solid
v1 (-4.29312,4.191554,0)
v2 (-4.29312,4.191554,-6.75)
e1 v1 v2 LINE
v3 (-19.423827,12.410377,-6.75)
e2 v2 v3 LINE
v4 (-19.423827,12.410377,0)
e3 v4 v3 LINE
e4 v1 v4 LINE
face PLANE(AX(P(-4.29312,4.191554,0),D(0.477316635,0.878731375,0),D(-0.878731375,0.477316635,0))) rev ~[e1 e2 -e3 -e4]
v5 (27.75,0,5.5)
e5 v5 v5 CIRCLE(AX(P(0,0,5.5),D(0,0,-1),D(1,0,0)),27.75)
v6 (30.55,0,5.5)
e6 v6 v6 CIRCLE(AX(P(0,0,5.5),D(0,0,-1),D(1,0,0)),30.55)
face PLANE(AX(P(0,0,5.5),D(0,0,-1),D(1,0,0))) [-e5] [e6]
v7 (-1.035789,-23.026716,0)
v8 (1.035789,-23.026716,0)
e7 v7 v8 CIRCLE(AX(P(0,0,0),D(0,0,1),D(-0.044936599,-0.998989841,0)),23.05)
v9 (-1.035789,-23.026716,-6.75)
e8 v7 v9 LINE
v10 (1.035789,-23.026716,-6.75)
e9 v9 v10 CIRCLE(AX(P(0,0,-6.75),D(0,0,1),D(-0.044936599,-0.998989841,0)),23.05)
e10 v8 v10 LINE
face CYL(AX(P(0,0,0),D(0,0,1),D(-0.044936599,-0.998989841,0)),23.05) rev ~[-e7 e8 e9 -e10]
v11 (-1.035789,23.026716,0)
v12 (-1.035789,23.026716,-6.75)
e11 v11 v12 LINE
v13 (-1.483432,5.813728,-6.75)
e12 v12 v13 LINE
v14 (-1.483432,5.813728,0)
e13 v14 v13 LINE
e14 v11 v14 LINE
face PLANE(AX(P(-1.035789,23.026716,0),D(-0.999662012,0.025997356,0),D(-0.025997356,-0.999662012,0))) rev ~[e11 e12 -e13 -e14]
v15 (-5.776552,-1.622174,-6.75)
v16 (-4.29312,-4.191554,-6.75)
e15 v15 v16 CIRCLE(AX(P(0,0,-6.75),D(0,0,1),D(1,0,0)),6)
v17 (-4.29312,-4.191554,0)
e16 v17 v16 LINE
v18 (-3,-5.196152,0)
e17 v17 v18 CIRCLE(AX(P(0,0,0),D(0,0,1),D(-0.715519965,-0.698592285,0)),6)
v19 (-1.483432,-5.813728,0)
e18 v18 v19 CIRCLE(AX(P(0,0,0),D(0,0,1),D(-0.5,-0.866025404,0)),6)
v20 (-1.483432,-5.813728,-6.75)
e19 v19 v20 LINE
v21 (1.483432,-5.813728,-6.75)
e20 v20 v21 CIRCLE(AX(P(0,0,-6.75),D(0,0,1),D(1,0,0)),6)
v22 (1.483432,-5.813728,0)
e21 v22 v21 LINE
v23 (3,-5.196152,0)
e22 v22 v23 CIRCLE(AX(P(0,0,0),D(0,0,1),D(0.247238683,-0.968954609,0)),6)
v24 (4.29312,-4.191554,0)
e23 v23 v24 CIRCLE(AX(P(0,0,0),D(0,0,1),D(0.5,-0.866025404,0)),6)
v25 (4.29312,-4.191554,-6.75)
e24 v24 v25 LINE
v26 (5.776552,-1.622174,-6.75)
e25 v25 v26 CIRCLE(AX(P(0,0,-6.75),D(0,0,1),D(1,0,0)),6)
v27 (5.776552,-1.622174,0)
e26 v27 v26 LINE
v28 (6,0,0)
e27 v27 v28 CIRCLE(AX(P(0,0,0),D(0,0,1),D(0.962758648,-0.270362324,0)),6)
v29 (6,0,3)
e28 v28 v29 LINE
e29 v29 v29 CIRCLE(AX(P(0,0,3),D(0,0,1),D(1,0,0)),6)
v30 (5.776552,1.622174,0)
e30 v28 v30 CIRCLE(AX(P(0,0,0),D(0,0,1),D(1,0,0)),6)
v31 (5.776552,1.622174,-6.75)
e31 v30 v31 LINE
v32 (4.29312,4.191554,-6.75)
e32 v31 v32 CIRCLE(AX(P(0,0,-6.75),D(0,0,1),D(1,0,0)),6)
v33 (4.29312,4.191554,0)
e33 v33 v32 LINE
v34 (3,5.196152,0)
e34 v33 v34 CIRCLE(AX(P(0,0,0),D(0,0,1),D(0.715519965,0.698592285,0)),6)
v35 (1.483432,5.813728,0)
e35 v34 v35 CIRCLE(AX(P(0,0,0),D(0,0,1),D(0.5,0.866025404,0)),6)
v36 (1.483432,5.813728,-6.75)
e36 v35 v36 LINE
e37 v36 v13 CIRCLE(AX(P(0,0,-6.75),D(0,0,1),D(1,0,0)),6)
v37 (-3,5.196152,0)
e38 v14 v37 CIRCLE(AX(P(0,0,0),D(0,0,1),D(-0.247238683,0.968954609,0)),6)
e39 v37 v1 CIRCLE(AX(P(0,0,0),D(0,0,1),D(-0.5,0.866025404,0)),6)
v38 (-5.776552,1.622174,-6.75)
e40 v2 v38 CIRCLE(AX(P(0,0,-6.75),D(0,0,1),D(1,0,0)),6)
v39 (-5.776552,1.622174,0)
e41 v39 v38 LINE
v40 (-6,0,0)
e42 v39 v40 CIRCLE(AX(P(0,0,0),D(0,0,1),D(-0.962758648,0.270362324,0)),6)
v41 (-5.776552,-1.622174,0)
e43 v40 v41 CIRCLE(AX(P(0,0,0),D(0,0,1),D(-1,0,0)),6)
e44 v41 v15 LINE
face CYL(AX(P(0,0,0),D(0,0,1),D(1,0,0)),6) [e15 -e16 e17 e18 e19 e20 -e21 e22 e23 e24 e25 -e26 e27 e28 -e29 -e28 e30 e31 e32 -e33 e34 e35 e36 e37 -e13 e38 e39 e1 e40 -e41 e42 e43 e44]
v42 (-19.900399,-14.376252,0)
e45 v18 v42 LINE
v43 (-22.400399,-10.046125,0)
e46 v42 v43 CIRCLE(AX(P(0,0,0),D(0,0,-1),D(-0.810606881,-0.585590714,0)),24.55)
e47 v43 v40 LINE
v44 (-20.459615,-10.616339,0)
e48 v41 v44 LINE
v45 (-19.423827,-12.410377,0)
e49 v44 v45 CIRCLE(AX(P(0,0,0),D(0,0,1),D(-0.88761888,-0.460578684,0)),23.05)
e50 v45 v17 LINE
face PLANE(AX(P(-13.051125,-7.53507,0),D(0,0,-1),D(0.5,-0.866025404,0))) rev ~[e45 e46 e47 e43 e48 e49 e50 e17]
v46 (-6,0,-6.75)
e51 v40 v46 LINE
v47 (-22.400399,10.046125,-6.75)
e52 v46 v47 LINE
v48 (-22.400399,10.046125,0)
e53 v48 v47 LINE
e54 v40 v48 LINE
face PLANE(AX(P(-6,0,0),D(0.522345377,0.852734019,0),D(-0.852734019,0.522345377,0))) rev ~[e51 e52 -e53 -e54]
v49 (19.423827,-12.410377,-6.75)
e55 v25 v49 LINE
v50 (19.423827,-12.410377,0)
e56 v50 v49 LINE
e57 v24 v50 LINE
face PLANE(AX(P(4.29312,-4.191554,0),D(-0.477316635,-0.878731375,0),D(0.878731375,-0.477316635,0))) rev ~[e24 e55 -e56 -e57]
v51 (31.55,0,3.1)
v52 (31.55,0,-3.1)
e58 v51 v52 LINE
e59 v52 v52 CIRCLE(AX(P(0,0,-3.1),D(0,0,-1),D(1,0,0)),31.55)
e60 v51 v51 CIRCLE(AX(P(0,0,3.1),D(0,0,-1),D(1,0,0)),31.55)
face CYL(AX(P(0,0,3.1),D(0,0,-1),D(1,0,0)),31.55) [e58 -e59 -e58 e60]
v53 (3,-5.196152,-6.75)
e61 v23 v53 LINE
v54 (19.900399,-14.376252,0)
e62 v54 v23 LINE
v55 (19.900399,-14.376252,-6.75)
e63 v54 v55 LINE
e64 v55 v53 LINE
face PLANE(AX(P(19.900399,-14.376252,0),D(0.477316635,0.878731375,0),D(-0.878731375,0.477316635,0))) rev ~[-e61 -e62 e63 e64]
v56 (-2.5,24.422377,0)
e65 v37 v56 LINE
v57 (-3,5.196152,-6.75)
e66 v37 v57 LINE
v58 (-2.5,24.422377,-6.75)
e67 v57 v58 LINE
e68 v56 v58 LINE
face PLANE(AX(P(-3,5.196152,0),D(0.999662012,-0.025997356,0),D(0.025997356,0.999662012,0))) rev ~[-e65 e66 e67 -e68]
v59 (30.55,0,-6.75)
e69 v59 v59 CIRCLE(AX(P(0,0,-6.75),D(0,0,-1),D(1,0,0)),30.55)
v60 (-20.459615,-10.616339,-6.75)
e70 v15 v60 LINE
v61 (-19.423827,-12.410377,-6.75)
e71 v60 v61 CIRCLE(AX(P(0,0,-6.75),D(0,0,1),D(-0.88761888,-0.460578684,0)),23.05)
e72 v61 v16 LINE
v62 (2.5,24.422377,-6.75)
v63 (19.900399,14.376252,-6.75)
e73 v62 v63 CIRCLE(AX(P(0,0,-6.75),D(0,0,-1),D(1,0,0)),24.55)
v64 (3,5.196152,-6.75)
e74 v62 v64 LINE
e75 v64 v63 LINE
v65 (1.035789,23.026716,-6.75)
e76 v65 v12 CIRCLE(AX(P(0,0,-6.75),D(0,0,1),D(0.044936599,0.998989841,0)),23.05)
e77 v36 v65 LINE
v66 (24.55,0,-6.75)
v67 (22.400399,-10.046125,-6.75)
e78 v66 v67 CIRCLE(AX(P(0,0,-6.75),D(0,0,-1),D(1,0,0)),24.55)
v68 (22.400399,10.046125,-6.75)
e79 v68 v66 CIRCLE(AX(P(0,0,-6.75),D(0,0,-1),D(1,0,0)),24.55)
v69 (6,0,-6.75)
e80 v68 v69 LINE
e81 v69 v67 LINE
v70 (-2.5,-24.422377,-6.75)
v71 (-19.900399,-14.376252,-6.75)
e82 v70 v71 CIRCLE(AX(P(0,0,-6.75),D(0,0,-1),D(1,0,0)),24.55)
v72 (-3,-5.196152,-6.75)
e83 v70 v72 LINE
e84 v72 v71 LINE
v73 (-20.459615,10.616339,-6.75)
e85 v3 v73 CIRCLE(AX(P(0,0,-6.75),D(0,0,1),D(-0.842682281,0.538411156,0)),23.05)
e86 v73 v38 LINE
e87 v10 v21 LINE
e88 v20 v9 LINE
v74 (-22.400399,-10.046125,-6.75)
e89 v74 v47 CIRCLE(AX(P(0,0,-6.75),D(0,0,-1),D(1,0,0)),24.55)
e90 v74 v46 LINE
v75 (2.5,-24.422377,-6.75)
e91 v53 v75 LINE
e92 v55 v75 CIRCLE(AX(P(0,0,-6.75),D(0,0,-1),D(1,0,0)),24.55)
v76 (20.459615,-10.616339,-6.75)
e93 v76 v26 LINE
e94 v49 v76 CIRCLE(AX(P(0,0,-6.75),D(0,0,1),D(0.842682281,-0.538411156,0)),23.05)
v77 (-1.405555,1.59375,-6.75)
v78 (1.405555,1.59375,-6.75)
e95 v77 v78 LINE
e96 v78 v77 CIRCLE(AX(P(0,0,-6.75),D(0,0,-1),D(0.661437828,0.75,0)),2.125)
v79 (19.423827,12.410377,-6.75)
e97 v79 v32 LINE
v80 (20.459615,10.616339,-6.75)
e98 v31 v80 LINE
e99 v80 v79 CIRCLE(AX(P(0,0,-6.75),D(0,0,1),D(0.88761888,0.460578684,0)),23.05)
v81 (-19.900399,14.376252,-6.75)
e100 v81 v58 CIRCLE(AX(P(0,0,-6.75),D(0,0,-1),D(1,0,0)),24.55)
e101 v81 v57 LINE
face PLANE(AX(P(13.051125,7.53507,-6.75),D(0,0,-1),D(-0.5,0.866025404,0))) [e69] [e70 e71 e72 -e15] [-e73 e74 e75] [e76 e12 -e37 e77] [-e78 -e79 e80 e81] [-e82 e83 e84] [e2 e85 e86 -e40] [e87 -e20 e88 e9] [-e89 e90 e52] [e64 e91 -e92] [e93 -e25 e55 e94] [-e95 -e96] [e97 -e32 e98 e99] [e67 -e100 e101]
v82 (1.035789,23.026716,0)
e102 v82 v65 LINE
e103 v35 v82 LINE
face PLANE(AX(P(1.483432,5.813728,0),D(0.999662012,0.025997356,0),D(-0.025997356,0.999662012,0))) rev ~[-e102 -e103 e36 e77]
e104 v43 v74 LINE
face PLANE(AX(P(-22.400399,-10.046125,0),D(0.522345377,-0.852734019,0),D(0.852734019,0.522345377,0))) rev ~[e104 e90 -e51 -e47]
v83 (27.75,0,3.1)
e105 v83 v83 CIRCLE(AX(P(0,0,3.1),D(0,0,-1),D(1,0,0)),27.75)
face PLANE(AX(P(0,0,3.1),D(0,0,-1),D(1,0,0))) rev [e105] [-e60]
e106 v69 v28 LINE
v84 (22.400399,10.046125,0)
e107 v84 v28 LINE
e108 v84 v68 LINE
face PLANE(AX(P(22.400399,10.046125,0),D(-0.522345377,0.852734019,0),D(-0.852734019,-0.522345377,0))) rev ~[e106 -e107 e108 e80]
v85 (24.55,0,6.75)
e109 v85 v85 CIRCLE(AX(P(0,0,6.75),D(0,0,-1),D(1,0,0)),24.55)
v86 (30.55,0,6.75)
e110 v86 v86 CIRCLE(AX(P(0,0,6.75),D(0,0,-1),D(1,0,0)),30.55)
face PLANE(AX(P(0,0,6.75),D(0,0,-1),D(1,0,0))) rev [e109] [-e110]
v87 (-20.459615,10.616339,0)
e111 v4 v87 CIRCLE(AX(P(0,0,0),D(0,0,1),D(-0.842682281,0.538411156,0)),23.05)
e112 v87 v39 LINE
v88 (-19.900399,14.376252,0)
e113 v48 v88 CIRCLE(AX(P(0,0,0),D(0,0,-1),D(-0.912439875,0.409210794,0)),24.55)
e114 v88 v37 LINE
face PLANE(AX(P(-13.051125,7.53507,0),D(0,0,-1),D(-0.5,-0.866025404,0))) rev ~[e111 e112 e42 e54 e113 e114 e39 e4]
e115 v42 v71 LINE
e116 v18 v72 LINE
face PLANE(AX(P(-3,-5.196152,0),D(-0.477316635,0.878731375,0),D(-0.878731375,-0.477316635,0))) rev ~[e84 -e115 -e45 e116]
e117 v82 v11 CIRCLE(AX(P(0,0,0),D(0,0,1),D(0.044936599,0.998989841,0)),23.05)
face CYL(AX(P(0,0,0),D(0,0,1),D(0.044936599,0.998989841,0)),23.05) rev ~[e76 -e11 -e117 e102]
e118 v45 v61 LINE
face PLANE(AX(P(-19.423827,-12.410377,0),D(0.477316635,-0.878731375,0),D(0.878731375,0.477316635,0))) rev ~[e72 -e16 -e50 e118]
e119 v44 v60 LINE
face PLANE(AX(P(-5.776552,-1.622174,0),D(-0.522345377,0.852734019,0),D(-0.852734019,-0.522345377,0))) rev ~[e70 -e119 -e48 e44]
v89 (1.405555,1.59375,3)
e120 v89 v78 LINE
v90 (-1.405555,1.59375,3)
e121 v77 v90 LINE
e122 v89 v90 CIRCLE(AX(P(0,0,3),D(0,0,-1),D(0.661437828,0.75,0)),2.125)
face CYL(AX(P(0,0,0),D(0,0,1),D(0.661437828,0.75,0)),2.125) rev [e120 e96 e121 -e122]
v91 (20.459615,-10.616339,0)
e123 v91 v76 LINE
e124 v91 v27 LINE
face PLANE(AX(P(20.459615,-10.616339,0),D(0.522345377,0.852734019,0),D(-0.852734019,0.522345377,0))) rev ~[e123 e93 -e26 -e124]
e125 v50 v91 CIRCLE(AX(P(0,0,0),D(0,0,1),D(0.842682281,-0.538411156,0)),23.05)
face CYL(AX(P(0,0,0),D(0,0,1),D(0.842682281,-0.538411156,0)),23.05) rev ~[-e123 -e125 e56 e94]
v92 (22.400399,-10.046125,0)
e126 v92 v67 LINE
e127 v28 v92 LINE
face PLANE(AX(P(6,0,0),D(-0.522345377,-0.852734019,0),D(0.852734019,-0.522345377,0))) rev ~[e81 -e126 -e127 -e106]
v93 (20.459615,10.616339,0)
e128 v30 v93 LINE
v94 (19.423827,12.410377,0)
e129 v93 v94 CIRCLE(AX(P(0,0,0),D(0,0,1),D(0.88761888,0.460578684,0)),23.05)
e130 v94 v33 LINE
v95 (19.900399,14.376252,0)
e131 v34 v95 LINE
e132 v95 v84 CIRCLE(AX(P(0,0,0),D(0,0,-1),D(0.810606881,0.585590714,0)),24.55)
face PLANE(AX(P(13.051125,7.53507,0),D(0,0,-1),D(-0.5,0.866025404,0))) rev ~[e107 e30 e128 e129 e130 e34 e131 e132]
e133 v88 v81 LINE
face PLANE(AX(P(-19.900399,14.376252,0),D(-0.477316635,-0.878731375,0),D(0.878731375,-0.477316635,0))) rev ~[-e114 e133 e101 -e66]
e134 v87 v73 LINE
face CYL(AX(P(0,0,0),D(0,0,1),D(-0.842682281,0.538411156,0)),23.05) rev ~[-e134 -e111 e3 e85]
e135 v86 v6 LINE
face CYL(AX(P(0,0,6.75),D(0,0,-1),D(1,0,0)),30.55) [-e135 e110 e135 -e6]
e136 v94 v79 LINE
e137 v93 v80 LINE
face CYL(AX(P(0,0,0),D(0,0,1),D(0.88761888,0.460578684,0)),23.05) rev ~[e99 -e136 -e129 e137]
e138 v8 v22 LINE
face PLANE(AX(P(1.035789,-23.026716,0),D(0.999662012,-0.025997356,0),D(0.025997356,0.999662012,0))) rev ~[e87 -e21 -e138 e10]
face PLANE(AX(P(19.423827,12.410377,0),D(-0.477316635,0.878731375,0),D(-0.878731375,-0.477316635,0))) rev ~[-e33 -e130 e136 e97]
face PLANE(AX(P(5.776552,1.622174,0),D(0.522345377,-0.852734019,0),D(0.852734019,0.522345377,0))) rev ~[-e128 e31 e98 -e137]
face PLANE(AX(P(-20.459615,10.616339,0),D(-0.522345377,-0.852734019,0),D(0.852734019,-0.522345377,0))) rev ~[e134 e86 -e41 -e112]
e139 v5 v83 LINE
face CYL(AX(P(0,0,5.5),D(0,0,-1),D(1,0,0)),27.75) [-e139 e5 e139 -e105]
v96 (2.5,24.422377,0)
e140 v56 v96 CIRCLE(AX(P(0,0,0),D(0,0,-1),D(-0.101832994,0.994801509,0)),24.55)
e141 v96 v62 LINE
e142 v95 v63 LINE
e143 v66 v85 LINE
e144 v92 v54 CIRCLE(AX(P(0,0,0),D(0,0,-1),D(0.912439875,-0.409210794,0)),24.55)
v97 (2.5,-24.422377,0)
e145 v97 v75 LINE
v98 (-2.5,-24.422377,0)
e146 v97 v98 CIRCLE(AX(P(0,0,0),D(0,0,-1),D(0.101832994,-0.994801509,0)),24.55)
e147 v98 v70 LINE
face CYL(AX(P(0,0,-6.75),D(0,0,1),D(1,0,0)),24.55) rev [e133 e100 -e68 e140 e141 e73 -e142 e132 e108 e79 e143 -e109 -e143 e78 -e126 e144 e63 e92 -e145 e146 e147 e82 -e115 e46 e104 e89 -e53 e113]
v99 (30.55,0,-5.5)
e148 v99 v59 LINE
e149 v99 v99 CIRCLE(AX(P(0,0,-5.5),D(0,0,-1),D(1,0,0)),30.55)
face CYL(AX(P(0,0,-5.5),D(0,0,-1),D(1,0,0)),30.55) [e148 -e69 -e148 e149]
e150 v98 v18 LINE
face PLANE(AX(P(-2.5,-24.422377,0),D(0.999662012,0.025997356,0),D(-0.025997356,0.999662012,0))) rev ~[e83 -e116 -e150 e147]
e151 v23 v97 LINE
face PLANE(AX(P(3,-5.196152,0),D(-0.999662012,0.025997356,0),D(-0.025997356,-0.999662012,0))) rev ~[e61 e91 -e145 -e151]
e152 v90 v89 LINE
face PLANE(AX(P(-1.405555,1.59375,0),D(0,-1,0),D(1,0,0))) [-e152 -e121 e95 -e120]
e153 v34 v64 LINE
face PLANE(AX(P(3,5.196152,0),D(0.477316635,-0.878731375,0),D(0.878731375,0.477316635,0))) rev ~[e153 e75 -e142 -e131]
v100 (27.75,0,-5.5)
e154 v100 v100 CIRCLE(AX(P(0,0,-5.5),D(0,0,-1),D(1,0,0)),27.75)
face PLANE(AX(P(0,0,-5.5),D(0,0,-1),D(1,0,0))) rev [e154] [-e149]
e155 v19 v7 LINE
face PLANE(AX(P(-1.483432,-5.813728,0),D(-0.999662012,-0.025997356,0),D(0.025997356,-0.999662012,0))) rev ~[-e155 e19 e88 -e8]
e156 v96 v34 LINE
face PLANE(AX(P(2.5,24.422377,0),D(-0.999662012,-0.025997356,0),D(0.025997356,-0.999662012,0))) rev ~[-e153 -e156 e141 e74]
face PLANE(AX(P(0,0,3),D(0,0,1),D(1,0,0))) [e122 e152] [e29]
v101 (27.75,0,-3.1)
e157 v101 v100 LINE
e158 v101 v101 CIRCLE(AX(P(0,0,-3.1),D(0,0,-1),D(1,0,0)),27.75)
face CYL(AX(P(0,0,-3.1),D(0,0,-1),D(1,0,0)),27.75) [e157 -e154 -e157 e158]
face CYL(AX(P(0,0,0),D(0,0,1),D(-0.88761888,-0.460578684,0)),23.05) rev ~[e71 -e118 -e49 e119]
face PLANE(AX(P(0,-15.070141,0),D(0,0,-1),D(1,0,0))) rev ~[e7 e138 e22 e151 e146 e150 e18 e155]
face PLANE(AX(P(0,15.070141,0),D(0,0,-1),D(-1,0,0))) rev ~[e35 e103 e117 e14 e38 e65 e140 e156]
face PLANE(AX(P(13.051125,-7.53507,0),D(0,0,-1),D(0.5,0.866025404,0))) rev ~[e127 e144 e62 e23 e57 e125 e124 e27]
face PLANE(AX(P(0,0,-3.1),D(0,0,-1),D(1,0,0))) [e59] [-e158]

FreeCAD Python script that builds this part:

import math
import FreeCAD as App
import Part
import Sketcher
from FreeCAD import Vector

doc = App.newDocument("Part")
body = doc.addObject("PartDesign::Body", "Body")

sketch1 = body.newObject("Sketcher::SketchObject", "Sketch")
sketch1.AttachmentSupport = (doc.getObject("XZ_Plane"), [""])
sketch1.MapMode = "FlatFace"
sketch1.addGeometry([
    Part.LineSegment(Vector(30.6, -6.8, 0), Vector(24.6, -6.8, 0)),
    Part.LineSegment(Vector(24.6, -6.8, 0), Vector(24.6, 6.8, 0)),
    Part.LineSegment(Vector(24.6, 6.8, 0), Vector(30.6, 6.8, 0)),
    Part.LineSegment(Vector(30.6, 6.8, 0), Vector(30.6, 5.5, 0)),
    Part.LineSegment(Vector(30.6, 5.5, 0), Vector(27.8, 5.5, 0)),
    Part.LineSegment(Vector(27.8, 5.5, 0), Vector(27.8, 3.1, 0)),
    Part.LineSegment(Vector(27.8, 3.1, 0), Vector(31.6, 3.1, 0)),
    Part.LineSegment(Vector(31.6, 3.1, 0), Vector(31.6, -3.1, 0)),
    Part.LineSegment(Vector(31.6, -3.1, 0), Vector(27.8, -3.1, 0)),
    Part.LineSegment(Vector(27.8, -3.1, 0), Vector(27.8, -5.5, 0)),
    Part.LineSegment(Vector(27.8, -5.5, 0), Vector(30.6, -5.5, 0)),
    Part.LineSegment(Vector(30.6, -5.5, 0), Vector(30.6, -6.8, 0)),
], False)
sketch1.addConstraint([
    Sketcher.Constraint("Coincident", 0, 2, 1, 1),
    Sketcher.Constraint("Coincident", 1, 2, 2, 1),
    Sketcher.Constraint("Coincident", 2, 2, 3, 1),
    Sketcher.Constraint("Coincident", 3, 2, 4, 1),
    Sketcher.Constraint("Coincident", 4, 2, 5, 1),
    Sketcher.Constraint("Coincident", 5, 2, 6, 1),
    Sketcher.Constraint("Coincident", 6, 2, 7, 1),
    Sketcher.Constraint("Coincident", 7, 2, 8, 1),
    Sketcher.Constraint("Coincident", 8, 2, 9, 1),
    Sketcher.Constraint("Coincident", 9, 2, 10, 1),
    Sketcher.Constraint("Coincident", 10, 2, 11, 1),
    Sketcher.Constraint("Coincident", 11, 2, 0, 1),
    Sketcher.Constraint("Horizontal", 0),
    Sketcher.Constraint("Vertical", 1),
    Sketcher.Constraint("Horizontal", 2),
    Sketcher.Constraint("Vertical", 3),
    Sketcher.Constraint("Horizontal", 4),
    Sketcher.Constraint("Vertical", 5),
    Sketcher.Constraint("Horizontal", 6),
    Sketcher.Constraint("Vertical", 7),
    Sketcher.Constraint("Horizontal", 8),
    Sketcher.Constraint("Vertical", 9),
    Sketcher.Constraint("Horizontal", 10),
    Sketcher.Constraint("Vertical", 11),
    Sketcher.Constraint("Symmetric", 5, 2, 8, 2, -1),
    Sketcher.Constraint("Symmetric", 3, 2, 10, 2, -1),
    Sketcher.Constraint("Equal", 3, 11),
    Sketcher.Constraint("DistanceX", 0, 2, 0, 1, 6.0),
    Sketcher.Constraint("DistanceX", 4, 2, 4, 1, 2.8),
    Sketcher.Constraint("DistanceX", 6, 1, 6, 2, 3.8),
    Sketcher.Constraint("DistanceY", 1, 1, 1, 2, 13.5),
    Sketcher.Constraint("DistanceY", 5, 2, 5, 1, 2.4),
    Sketcher.Constraint("DistanceY", 7, 2, 7, 1, 6.2),
    Sketcher.Constraint("DistanceX", -1, 1, 0, 2, 24.55),
])
revolution = body.newObject("PartDesign::Revolution", "Revolution")
revolution.Profile = sketch1
revolution.ReferenceAxis = (sketch1, ["V_Axis"])
revolution.Angle = 360
body2 = doc.addObject("PartDesign::Body", "Body001")

sketch2 = body2.newObject("Sketcher::SketchObject", "Sketch001")
sketch2.AttachmentSupport = (doc.getObject("XY_Plane001"), [""])
sketch2.MapMode = "FlatFace"
sketch2.addGeometry([
    Part.Circle(Vector(0, 0, 0), Vector(0, 0, 1), 6),
    Part.ArcOfCircle(Part.Circle(Vector(0, 0, 0), Vector(0, 0, 1), 2.1), math.radians(131), math.radians(409)),
    Part.LineSegment(Vector(-1.4, 1.6, 0), Vector(1.4, 1.6, 0)),
], False)
sketch2.addConstraint([
    Sketcher.Constraint("Coincident", 1, 1, 2, 1),
    Sketcher.Constraint("Coincident", 2, 2, 1, 2),
    Sketcher.Constraint("Horizontal", 2),
    Sketcher.Constraint("Coincident", 0, 3, -1, 1),
    Sketcher.Constraint("Coincident", 1, 3, -1, 1),
    Sketcher.Constraint("Diameter", 0, 12.0),
    Sketcher.Constraint("Radius", 1, 2.125),
    Sketcher.Constraint("DistanceX", 2, 1, 2, 2, 2.811111),
])
pad1 = body2.newObject("PartDesign::Pad", "Pad")
pad1.Profile = sketch2
pad1.Type = "TwoLengths"
pad1.Length = 3
pad1.Length2 = 6.75
body.AllowCompound = True
doc.recompute()

boolean = body.newObject("PartDesign::Boolean", "Boolean")
boolean.Type = "Fuse"
boolean.addObjects([body2])

sketch3 = body.newObject("Sketcher::SketchObject", "Sketch002")
sketch3.AttachmentSupport = (doc.getObject("XY_Plane"), [""])
sketch3.MapMode = "FlatFace"
sketch3.addGeometry([
    Part.LineSegment(Vector(-2.5, 24.4, 0), Vector(-3, 5.2, 0)),
    Part.ArcOfCircle(Part.Circle(Vector(0, 0, 0), Vector(0, 0, 1), 6), math.radians(104.31), math.radians(120)),
    Part.LineSegment(Vector(-1.5, 5.8, 0), Vector(-1, 23, 0)),
    Part.ArcOfCircle(Part.Circle(Vector(0, 0, 0), Vector(0, 0, 1), 23.1), math.radians(87.42), math.radians(92.58)),
    Part.LineSegment(Vector(1, 23, 0), Vector(1.5, 5.8, 0)),
    Part.ArcOfCircle(Part.Circle(Vector(0, 0, 0), Vector(0, 0, 1), 6), math.radians(60), math.radians(75.69)),
    Part.LineSegment(Vector(3, 5.2, 0), Vector(2.5, 24.4, 0)),
    Part.ArcOfCircle(Part.Circle(Vector(0, 0, 0), Vector(0, 0, 1), 24.5), math.radians(84.16), math.radians(95.84)),
], False)
sketch3.addConstraint([
    Sketcher.Constraint("Coincident", 0, 2, 1, 2),
    Sketcher.Constraint("Coincident", 1, 1, 2, 1),
    Sketcher.Constraint("Coincident", 2, 2, 3, 2),
    Sketcher.Constraint("Coincident", 3, 1, 4, 1),
    Sketcher.Constraint("Coincident", 4, 2, 5, 2),
    Sketcher.Constraint("Coincident", 5, 1, 6, 1),
    Sketcher.Constraint("Coincident", 6, 2, 7, 1),
    Sketcher.Constraint("Coincident", 7, 2, 0, 1),
    Sketcher.Constraint("Coincident", 1, 3, -1, 1),
    Sketcher.Constraint("Coincident", 3, 3, -1, 1),
    Sketcher.Constraint("Coincident", 5, 3, -1, 1),
    Sketcher.Constraint("Coincident", 7, 3, -1, 1),
    Sketcher.Constraint("Equal", 1, 5),
    Sketcher.Constraint("Parallel", 0, 2),
    Sketcher.Constraint("Parallel", 4, 6),
    Sketcher.Constraint("Horizontal", 2, 2, 3, 1),
    Sketcher.Constraint("Horizontal", 1, 1, 4, 2),
    Sketcher.Constraint("Horizontal", 0, 2, 5, 1),
    Sketcher.Constraint("Radius", 1, 6.0),
    Sketcher.Constraint("Radius", 3, 23.05),
    Sketcher.Constraint("Radius", 7, 24.55),
    Sketcher.Constraint("DistanceX", 0, 2, -1, 1, 3.0),
    Sketcher.Constraint("DistanceX", 7, 2, 6, 2, 5.0),
    Sketcher.Constraint("DistanceX", 2, 2, -1, 1, 1.035789),
])
pad2 = body.newObject("PartDesign::Pad", "Pad001")
pad2.Profile = sketch3
pad2.Length = 6.75
pad2.Reversed = True
doc.recompute()

polarpattern = body.newObject("PartDesign::PolarPattern", "PolarPattern")
polarpattern.Originals = [pad2]
polarpattern.Axis = (doc.getObject("Z_Axis"), [""])
polarpattern.Angle = 360
polarpattern.Occurrences = 6
body.Tip = polarpattern

doc.recompute()
